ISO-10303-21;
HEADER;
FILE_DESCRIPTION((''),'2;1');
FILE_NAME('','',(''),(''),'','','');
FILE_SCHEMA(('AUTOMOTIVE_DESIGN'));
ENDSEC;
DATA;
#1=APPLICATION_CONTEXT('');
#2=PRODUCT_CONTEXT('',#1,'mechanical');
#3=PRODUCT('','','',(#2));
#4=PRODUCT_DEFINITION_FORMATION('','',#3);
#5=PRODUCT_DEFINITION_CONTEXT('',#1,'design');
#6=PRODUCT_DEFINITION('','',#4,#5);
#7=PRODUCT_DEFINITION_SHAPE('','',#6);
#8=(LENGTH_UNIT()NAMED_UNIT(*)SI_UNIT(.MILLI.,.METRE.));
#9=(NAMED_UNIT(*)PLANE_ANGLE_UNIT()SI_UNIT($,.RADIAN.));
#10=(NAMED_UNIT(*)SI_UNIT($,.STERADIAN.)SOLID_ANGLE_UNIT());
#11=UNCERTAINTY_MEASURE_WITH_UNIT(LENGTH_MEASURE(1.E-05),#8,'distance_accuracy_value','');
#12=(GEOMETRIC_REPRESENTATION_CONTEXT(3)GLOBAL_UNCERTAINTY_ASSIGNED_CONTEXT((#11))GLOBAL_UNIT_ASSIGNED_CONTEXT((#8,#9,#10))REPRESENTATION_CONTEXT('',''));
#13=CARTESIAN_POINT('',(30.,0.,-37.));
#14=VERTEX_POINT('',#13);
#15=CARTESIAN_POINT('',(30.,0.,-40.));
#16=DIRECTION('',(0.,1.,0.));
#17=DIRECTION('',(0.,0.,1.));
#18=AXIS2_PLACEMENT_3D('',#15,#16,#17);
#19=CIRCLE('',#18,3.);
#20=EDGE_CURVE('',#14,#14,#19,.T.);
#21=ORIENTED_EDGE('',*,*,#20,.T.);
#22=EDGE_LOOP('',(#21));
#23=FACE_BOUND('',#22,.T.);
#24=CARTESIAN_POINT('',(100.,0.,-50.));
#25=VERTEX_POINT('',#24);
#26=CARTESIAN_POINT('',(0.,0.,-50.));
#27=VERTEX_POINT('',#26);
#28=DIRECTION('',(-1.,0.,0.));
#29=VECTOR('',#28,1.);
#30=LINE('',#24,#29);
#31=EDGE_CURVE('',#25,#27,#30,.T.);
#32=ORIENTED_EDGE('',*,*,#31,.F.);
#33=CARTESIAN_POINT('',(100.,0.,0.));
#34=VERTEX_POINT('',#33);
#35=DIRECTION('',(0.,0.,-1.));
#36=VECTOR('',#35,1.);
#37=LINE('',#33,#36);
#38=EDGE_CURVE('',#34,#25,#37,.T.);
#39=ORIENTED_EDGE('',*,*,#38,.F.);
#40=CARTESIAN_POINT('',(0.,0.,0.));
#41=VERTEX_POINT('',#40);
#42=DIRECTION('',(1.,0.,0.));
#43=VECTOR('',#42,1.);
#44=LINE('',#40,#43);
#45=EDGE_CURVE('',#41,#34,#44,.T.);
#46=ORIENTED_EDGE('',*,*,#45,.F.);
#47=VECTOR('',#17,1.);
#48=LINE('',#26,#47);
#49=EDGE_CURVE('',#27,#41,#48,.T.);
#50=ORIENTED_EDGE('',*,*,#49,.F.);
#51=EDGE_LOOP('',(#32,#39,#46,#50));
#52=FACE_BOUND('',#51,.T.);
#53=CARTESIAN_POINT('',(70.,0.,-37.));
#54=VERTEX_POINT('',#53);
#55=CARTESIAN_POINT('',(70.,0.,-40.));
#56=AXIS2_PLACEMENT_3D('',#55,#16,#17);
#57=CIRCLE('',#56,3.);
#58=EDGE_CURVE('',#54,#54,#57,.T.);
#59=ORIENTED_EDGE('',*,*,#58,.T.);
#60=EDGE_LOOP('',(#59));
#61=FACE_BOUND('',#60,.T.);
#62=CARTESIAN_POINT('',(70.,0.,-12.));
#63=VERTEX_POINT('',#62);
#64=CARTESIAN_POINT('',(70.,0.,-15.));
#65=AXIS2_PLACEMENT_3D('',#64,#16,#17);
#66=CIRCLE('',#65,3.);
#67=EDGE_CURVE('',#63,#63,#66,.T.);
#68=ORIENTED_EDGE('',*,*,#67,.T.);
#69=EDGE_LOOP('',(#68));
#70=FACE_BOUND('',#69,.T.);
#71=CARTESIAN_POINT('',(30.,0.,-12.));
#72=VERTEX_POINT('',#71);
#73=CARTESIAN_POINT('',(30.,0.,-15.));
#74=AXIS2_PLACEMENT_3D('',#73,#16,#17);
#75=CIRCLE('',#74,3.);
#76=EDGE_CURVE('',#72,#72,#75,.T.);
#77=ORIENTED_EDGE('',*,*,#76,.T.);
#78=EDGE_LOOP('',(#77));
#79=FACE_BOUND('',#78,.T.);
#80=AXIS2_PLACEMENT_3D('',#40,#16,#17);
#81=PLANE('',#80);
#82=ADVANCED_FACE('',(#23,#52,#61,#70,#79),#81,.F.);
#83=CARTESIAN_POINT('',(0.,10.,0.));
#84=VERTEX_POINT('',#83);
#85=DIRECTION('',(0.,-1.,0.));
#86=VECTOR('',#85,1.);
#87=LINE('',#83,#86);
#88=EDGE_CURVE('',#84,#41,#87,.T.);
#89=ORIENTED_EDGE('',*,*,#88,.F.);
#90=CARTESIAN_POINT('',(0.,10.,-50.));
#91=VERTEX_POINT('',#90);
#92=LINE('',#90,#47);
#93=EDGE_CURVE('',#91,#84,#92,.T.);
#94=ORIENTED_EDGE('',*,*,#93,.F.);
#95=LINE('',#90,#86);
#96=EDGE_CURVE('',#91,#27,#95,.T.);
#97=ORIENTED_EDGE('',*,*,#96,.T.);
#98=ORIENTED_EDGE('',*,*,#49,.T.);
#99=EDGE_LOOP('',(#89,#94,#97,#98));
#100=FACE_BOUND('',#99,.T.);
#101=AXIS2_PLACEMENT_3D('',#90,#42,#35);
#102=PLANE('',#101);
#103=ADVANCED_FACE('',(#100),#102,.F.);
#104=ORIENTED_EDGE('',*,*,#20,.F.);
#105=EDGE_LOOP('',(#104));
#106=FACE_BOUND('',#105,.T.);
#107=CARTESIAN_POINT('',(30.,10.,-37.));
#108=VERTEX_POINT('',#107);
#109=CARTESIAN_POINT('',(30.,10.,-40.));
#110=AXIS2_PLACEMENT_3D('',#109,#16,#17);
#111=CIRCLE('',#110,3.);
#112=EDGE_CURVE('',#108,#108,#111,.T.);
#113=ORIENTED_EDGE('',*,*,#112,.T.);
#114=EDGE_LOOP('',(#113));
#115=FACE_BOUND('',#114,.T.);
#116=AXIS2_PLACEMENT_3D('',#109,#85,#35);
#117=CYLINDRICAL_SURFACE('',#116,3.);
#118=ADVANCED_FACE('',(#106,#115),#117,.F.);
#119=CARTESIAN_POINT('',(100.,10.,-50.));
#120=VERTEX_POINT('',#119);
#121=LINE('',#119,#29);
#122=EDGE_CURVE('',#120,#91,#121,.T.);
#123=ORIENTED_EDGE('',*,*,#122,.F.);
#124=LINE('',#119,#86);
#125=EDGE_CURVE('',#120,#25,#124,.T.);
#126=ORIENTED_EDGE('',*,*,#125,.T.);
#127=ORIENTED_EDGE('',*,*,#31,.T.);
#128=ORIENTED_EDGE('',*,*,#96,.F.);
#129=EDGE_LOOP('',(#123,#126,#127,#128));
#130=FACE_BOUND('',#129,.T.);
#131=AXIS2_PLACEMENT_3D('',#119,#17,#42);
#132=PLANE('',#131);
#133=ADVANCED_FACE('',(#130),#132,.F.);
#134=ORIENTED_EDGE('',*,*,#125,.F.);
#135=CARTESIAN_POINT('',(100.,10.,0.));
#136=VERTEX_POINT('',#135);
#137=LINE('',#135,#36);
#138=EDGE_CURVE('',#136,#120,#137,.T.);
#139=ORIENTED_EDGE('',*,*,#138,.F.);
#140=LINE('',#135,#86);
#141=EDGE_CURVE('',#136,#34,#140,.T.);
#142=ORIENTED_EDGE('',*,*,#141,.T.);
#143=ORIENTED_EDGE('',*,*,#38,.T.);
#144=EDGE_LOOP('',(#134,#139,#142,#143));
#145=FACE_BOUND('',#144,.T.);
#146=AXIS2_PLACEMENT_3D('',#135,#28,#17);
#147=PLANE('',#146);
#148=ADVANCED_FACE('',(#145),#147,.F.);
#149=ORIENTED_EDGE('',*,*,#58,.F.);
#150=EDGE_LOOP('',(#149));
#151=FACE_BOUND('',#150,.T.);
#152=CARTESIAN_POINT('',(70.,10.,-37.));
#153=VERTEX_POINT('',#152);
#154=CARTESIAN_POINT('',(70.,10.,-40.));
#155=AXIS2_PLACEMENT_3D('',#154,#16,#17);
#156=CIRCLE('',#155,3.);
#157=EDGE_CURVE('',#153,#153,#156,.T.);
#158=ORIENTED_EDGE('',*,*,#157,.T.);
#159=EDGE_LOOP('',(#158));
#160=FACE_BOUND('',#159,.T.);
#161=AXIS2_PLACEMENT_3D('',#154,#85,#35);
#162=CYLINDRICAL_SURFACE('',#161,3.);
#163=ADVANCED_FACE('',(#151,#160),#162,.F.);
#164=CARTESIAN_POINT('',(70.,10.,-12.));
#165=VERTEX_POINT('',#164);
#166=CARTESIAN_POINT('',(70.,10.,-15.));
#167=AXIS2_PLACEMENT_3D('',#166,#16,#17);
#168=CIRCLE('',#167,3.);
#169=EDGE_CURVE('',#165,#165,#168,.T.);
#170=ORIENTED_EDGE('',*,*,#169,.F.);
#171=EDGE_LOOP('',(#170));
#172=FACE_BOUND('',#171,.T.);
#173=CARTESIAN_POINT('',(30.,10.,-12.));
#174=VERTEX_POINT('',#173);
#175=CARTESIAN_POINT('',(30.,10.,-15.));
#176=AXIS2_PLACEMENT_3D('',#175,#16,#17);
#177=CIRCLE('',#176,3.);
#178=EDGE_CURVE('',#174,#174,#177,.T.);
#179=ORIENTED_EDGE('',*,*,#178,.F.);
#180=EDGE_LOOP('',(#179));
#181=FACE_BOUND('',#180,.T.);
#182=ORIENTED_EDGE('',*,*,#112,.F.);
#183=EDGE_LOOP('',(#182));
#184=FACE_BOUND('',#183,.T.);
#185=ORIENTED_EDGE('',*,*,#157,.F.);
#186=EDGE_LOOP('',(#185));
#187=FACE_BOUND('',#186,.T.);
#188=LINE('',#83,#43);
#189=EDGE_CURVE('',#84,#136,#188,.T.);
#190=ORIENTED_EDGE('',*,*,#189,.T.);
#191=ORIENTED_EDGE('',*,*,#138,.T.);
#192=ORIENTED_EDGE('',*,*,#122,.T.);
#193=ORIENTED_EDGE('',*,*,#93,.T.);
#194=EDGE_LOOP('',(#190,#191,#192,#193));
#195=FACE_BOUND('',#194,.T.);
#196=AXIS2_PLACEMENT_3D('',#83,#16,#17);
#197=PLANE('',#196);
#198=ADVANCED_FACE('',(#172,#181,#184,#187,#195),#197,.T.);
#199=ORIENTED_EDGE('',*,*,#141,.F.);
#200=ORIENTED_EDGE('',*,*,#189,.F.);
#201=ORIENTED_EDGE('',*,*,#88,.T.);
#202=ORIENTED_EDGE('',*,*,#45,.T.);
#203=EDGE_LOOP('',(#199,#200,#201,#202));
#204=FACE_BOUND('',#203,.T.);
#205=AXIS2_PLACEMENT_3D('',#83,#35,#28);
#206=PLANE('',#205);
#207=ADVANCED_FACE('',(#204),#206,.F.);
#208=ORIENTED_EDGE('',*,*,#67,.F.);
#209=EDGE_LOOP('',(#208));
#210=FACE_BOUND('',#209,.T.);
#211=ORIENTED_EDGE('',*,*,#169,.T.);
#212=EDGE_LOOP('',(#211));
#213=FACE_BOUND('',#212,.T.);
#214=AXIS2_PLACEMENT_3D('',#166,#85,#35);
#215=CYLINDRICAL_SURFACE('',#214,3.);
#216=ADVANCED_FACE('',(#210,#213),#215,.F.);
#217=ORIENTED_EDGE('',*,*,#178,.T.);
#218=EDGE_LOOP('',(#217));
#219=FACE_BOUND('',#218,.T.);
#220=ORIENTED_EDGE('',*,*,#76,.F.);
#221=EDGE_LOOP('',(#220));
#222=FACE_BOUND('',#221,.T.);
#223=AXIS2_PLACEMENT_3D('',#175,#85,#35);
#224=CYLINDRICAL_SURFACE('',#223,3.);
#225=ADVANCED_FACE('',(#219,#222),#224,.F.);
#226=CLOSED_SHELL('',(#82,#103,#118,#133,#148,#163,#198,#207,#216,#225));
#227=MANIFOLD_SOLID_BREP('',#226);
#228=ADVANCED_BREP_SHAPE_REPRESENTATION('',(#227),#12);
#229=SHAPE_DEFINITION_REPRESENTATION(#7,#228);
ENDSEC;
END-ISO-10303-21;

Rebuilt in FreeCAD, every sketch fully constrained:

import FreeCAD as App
import Part
import Sketcher
from FreeCAD import Vector
Q = App.Units.Quantity

doc = App.newDocument("Part")
params = doc.addObject("Spreadsheet::Sheet", "Params")
for row, (alias, value) in enumerate([
    ("sketch1_diameter", "6 mm"),
    ("sketch1_width", "100 mm"),
    ("sketch1_height", "50 mm"),
    ("pad1_length", "10 mm"),
], start=1):
    params.set(f"A{row}", alias)
    params.set(f"B{row}", "=" + value)
    params.setAlias(f"B{row}", alias)

body = doc.addObject("PartDesign::Body", "Body")

# Sketch on XZ plane
sketch1 = body.newObject("Sketcher::SketchObject", "Sketch")
sketch1.AttachmentSupport = (doc.getObject("XZ_Plane"), [""])
sketch1.MapMode = "FlatFace"
sketch1.addGeometry([
    Part.LineSegment(Vector(0, -50, 0), Vector(0, 0, 0)),  # 0
    Part.LineSegment(Vector(0, 0, 0), Vector(100, 0, 0)),  # 1
    Part.LineSegment(Vector(100, 0, 0), Vector(100, -50, 0)),  # 2
    Part.LineSegment(Vector(100, -50, 0), Vector(0, -50, 0)),  # 3
    Part.Circle(Vector(30, -15, 0), Vector(0, 0, 1), 3),  # 4
    Part.Circle(Vector(70, -15, 0), Vector(0, 0, 1), 3),  # 5
    Part.Circle(Vector(30, -40, 0), Vector(0, 0, 1), 3),  # 6
    Part.Circle(Vector(70, -40, 0), Vector(0, 0, 1), 3),  # 7
], False)
sketch1.addConstraint([
    Sketcher.Constraint("Coincident", 0, 2, 1, 1),
    Sketcher.Constraint("Coincident", 1, 2, 2, 1),
    Sketcher.Constraint("Coincident", 2, 2, 3, 1),
    Sketcher.Constraint("Coincident", 3, 2, 0, 1),
    Sketcher.Constraint("Vertical", 0),
    Sketcher.Constraint("Horizontal", 1),
    Sketcher.Constraint("Vertical", 2),
    Sketcher.Constraint("Horizontal", 3),
    Sketcher.Constraint("Coincident", 0, 2, -1, 1),
    Sketcher.Constraint("Equal", 4, 5),
    Sketcher.Constraint("Equal", 5, 6),
    Sketcher.Constraint("Equal", 6, 7),
    Sketcher.Constraint("Horizontal", 4, 3, 5, 3),
    Sketcher.Constraint("Horizontal", 6, 3, 7, 3),
    Sketcher.Constraint("Vertical", 4, 3, 6, 3),
    Sketcher.Constraint("Vertical", 5, 3, 7, 3),
    Sketcher.Constraint("Diameter", 4, Q("6 mm")),
    Sketcher.Constraint("DistanceX", 1, 1, 1, 2, Q("100 mm")),
    Sketcher.Constraint("DistanceY", 0, 1, 0, 2, Q("50 mm")),
    Sketcher.Constraint("DistanceX", -1, 1, 4, 3, Q("30 mm")),
    Sketcher.Constraint("DistanceY", 4, 3, -1, 1, Q("15 mm")),
    Sketcher.Constraint("DistanceX", -1, 1, 5, 3, Q("70 mm")),
    Sketcher.Constraint("DistanceY", 6, 3, -1, 1, Q("40 mm")),
])
sketch1.setExpression("Constraints[16]", "Params.sketch1_diameter")
sketch1.setExpression("Constraints[17]", "Params.sketch1_width")
sketch1.setExpression("Constraints[18]", "Params.sketch1_height")
pad1 = body.newObject("PartDesign::Pad", "Pad")
pad1.Profile = sketch1
pad1.setExpression("Length", "Params.pad1_length")
pad1.Reversed = True

doc.recompute()
